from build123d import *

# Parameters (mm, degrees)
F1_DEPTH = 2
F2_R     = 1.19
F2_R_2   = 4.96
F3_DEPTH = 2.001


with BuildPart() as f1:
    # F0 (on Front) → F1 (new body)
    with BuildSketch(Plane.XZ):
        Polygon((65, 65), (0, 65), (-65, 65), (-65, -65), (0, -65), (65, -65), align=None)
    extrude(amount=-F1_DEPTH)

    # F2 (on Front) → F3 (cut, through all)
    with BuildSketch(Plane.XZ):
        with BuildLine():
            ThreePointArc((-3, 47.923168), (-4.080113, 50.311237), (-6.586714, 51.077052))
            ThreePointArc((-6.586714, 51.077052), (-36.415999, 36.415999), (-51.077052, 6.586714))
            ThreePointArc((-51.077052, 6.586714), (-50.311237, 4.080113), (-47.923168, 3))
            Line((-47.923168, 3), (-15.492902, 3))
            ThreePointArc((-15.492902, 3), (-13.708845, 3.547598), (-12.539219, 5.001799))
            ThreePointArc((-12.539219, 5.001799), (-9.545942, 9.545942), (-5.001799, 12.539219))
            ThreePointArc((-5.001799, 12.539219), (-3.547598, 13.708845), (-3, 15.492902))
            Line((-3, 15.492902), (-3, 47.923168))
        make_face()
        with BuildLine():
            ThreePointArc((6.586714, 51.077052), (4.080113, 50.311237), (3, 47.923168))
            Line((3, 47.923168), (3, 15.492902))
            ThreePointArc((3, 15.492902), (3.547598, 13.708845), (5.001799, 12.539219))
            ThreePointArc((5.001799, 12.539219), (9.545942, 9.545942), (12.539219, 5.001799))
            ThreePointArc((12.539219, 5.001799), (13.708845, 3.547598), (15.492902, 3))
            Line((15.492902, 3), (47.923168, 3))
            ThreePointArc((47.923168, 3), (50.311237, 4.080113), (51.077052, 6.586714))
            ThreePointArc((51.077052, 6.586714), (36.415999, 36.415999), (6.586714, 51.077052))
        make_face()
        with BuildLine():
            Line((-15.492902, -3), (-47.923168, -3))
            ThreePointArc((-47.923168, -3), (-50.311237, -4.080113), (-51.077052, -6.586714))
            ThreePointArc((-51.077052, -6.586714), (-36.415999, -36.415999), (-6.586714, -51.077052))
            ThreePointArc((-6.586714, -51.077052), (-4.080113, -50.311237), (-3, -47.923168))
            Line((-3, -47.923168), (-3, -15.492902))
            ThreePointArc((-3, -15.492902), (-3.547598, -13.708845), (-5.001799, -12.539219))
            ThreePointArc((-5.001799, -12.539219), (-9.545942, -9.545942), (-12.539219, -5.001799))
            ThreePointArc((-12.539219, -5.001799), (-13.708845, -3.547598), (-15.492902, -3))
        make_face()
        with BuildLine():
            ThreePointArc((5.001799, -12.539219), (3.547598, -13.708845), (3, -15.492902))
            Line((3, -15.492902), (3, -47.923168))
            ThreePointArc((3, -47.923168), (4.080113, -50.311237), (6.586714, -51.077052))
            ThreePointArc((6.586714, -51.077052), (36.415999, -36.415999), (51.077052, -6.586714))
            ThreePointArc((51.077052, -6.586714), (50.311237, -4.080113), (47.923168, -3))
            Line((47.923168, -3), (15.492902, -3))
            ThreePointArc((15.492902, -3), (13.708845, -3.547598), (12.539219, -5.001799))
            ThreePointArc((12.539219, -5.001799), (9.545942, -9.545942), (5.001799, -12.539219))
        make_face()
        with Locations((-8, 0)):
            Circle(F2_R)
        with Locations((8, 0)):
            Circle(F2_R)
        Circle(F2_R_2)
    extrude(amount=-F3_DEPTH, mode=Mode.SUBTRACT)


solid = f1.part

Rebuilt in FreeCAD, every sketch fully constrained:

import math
import FreeCAD as App
import Part
import Sketcher

V = App.Vector
Q = App.Units.Quantity


def add_polygon(sketch, points):
    """Adds a closed chain of lines whose ends are joined by coincident constraints."""
    first, n = sketch.GeometryCount, len(points)
    for a, b in zip(points, points[1:] + points[:1]):
        sketch.addGeometry(Part.LineSegment(App.Vector(*a, 0), App.Vector(*b, 0)), False)
    for i in range(n):
        sketch.addConstraint(Sketcher.Constraint("Coincident", first + i, 2, first + (i + 1) % n, 1))

doc = App.newDocument("Part")
params = doc.addObject("Spreadsheet::Sheet", "Params")
for row, (alias, value) in enumerate([
    ("sketch1_width", "130 mm"),
    ("pad1_length", "2 mm"),
    ("sketch2_diameter", "2.38 mm"),
    ("sketch2_diameter2", "9.92 mm"),
    ("sketch2_radius", "3.18 mm"),
], start=1):
    params.set(f"A{row}", alias)
    params.set(f"B{row}", "=" + value)
    params.setAlias(f"B{row}", alias)

body = doc.addObject("PartDesign::Body", "Body")

# Sketch on XZ plane
sketch1 = doc.addObject("Sketcher::SketchObject", "Sketch")
body.addObject(sketch1)
sketch1.AttachmentSupport = (doc.XZ_Plane, [""])
sketch1.MapMode = "FlatFace"
add_polygon(sketch1, [(65, 65), (-65, 65), (-65, -65), (65, -65)])  # lines 0-3
sketch1.addConstraint([
    Sketcher.Constraint("Horizontal", 0),
    Sketcher.Constraint("Vertical", 1),
    Sketcher.Constraint("Horizontal", 2),
    Sketcher.Constraint("Vertical", 3),
    Sketcher.Constraint("Symmetric", 0, 2, 2, 2, -1, 1),
    Sketcher.Constraint("Equal", 2, 1),
    Sketcher.Constraint("DistanceX", 0, 2, 0, 1, Q("130 mm")),
])
sketch1.setExpression("Constraints[10]", "Params.sketch1_width")
pad1 = doc.addObject("PartDesign::Pad", "Pad")
body.addObject(pad1)
pad1.Profile = sketch1
pad1.setExpression("Length", "Params.pad1_length")
pad1.Reversed = True

# Sketch on XZ plane
sketch2 = doc.addObject("Sketcher::SketchObject", "Sketch001")
body.addObject(sketch2)
sketch2.AttachmentSupport = (doc.XZ_Plane, [""])
sketch2.MapMode = "FlatFace"
sketch2.addGeometry([
    Part.ArcOfCircle(Part.Circle(V(-6.18, 47.923168, 0), V(0, 0, 1), 3.18), math.radians(0.000008), math.radians(97.348104)),  # 0
    Part.ArcOfCircle(Part.Circle(V(0.000003, -0.000003, 0), V(0, 0, 1), 51.500003), math.radians(97.348108), math.radians(172.651892)),  # 1
    Part.ArcOfCircle(Part.Circle(V(-47.923168, 6.18, 0), V(0, 0, 1), 3.18), math.radians(172.651896), math.radians(269.999992)),  # 2
    Part.LineSegment(V(-47.923168, 3, 0), V(-15.492902, 3, 0)),  # 3
    Part.ArcOfCircle(Part.Circle(V(-15.492902, 6.180001, 0), V(0, 0, 1), 3.180001), math.radians(-89.999995), math.radians(-21.746678)),  # 4
    Part.ArcOfCircle(Part.Circle(V(-0.000004, 0.000004, 0), V(0, 0, 1), 13.499996), math.radians(111.746672), math.radians(158.253328)),  # 5
    Part.ArcOfCircle(Part.Circle(V(-6.180001, 15.492902, 0), V(0, 0, 1), 3.180001), math.radians(-68.253322), math.radians(-0.000005)),  # 6
    Part.LineSegment(V(-3, 15.492902, 0), V(-3, 47.923168, 0)),  # 7
    Part.ArcOfCircle(Part.Circle(V(6.18, 47.923168, 0), V(0, 0, 1), 3.18), math.radians(82.651896), math.radians(179.999992)),  # 8
    Part.LineSegment(V(3, 47.923168, 0), V(3, 15.492902, 0)),  # 9
    Part.ArcOfCircle(Part.Circle(V(6.180001, 15.492902, 0), V(0, 0, 1), 3.180001), math.radians(-179.999995), math.radians(-111.746678)),  # 10
    Part.ArcOfCircle(Part.Circle(V(0.000004, 0.000004, 0), V(0, 0, 1), 13.499996), math.radians(21.746672), math.radians(68.253328)),  # 11
    Part.ArcOfCircle(Part.Circle(V(15.492902, 6.180001, 0), V(0, 0, 1), 3.180001), math.radians(-158.253322), math.radians(-90.000005)),  # 12
    Part.LineSegment(V(15.492902, 3, 0), V(47.923168, 3, 0)),  # 13
    Part.ArcOfCircle(Part.Circle(V(47.923168, 6.18, 0), V(0, 0, 1), 3.18), math.radians(-89.999992), math.radians(7.348104)),  # 14
    Part.ArcOfCircle(Part.Circle(V(-0.000003, -0.000003, 0), V(0, 0, 1), 51.500003), math.radians(7.348108), math.radians(82.651892)),  # 15
    Part.LineSegment(V(-15.492902, -3, 0), V(-47.923168, -3, 0)),  # 16
    Part.ArcOfCircle(Part.Circle(V(-47.923168, -6.18, 0), V(0, 0, 1), 3.18), math.radians(90.000008), math.radians(187.348104)),  # 17
    Part.ArcOfCircle(Part.Circle(V(0.000003, 0.000003, 0), V(0, 0, 1), 51.500003), math.radians(-172.651892), math.radians(-97.348108)),  # 18
    Part.ArcOfCircle(Part.Circle(V(-6.18, -47.923168, 0), V(0, 0, 1), 3.18), math.radians(-97.348104), math.radians(-0.000008)),  # 19
    Part.LineSegment(V(-3, -47.923168, 0), V(-3, -15.492902, 0)),  # 20
    Part.ArcOfCircle(Part.Circle(V(-6.180001, -15.492902, 0), V(0, 0, 1), 3.180001), math.radians(0.000005), math.radians(68.253322)),  # 21
    Part.ArcOfCircle(Part.Circle(V(-0.000004, -0.000004, 0), V(0, 0, 1), 13.499996), math.radians(-158.253328), math.radians(-111.746672)),  # 22
    Part.ArcOfCircle(Part.Circle(V(-15.492902, -6.180001, 0), V(0, 0, 1), 3.180001), math.radians(21.746678), math.radians(89.999995)),  # 23
    Part.ArcOfCircle(Part.Circle(V(6.180001, -15.492902, 0), V(0, 0, 1), 3.180001), math.radians(111.746678), math.radians(179.999995)),  # 24
    Part.LineSegment(V(3, -15.492902, 0), V(3, -47.923168, 0)),  # 25
    Part.ArcOfCircle(Part.Circle(V(6.18, -47.923168, 0), V(0, 0, 1), 3.18), math.radians(-179.999992), math.radians(-82.651896)),  # 26
    Part.ArcOfCircle(Part.Circle(V(-0.000003, 0.000003, 0), V(0, 0, 1), 51.500003), math.radians(-82.651892), math.radians(-7.348108)),  # 27
    Part.ArcOfCircle(Part.Circle(V(47.923168, -6.18, 0), V(0, 0, 1), 3.18), math.radians(-7.348104), math.radians(89.999992)),  # 28
    Part.LineSegment(V(47.923168, -3, 0), V(15.492902, -3, 0)),  # 29
    Part.ArcOfCircle(Part.Circle(V(15.492902, -6.180001, 0), V(0, 0, 1), 3.180001), math.radians(90.000005), math.radians(158.253322)),  # 30
    Part.ArcOfCircle(Part.Circle(V(0.000004, -0.000004, 0), V(0, 0, 1), 13.499996), math.radians(-68.253328), math.radians(-21.746672)),  # 31
    Part.Circle(V(-8, 0, 0), V(0, 0, 1), 1.19),  # 32
    Part.Circle(V(8, 0, 0), V(0, 0, 1), 1.19),  # 33
    Part.Circle(V(0, 0, 0), V(0, 0, 1), 4.96),  # 34
], False)
sketch2.addConstraint([
    Sketcher.Constraint("Tangent", 0, 2, 1, 1),
    Sketcher.Constraint("Tangent", 1, 2, 2, 1),
    Sketcher.Constraint("Tangent", 2, 2, 3, 1),
    Sketcher.Constraint("Tangent", 3, 2, 4, 1),
    Sketcher.Constraint("Tangent", 4, 2, 5, 2),
    Sketcher.Constraint("Tangent", 5, 1, 6, 1),
    Sketcher.Constraint("Tangent", 6, 2, 7, 1),
    Sketcher.Constraint("Tangent", 7, 2, 0, 1),
    Sketcher.Constraint("Tangent", 8, 2, 9, 1),
    Sketcher.Constraint("Tangent", 9, 2, 10, 1),
    Sketcher.Constraint("Tangent", 10, 2, 11, 2),
    Sketcher.Constraint("Tangent", 11, 1, 12, 1),
    Sketcher.Constraint("Tangent", 12, 2, 13, 1),
    Sketcher.Constraint("Tangent", 13, 2, 14, 1),
    Sketcher.Constraint("Tangent", 14, 2, 15, 1),
    Sketcher.Constraint("Tangent", 15, 2, 8, 1),
    Sketcher.Constraint("Tangent", 16, 2, 17, 1),
    Sketcher.Constraint("Tangent", 17, 2, 18, 1),
    Sketcher.Constraint("Tangent", 18, 2, 19, 1),
    Sketcher.Constraint("Tangent", 19, 2, 20, 1),
    Sketcher.Constraint("Tangent", 20, 2, 21, 1),
    Sketcher.Constraint("Tangent", 21, 2, 22, 2),
    Sketcher.Constraint("Tangent", 22, 1, 23, 1),
    Sketcher.Constraint("Tangent", 23, 2, 16, 1),
    Sketcher.Constraint("Tangent", 24, 2, 25, 1),
    Sketcher.Constraint("Tangent", 25, 2, 26, 1),
    Sketcher.Constraint("Tangent", 26, 2, 27, 1),
    Sketcher.Constraint("Tangent", 27, 2, 28, 1),
    Sketcher.Constraint("Tangent", 28, 2, 29, 1),
    Sketcher.Constraint("Tangent", 29, 2, 30, 1),
    Sketcher.Constraint("Tangent", 30, 2, 31, 2),
    Sketcher.Constraint("Tangent", 31, 1, 24, 1),
    Sketcher.Constraint("Horizontal", 3),
    Sketcher.Constraint("Vertical", 7),
    Sketcher.Constraint("Vertical", 9),
    Sketcher.Constraint("Horizontal", 13),
    Sketcher.Constraint("Horizontal", 16),
    Sketcher.Constraint("Vertical", 20),
    Sketcher.Constraint("Vertical", 25),
    Sketcher.Constraint("Horizontal", 29),
    Sketcher.Constraint("Coincident", 1, 3, -1, 1),
    Sketcher.Constraint("Coincident", 5, 3, -1, 1),
    Sketcher.Constraint("Coincident", 11, 3, -1, 1),
    Sketcher.Constraint("Coincident", 15, 3, -1, 1),
    Sketcher.Constraint("Coincident", 18, 3, -1, 1),
    Sketcher.Constraint("Coincident", 22, 3, -1, 1),
    Sketcher.Constraint("Coincident", 27, 3, -1, 1),
    Sketcher.Constraint("Coincident", 31, 3, -1, 1),
    Sketcher.Constraint("Coincident", 34, 3, -1, 1),
    Sketcher.Constraint("Equal", 0, 2),
    Sketcher.Constraint("Equal", 2, 4),
    Sketcher.Constraint("Equal", 4, 6),
    Sketcher.Constraint("Equal", 6, 8),
    Sketcher.Constraint("Equal", 8, 10),
    Sketcher.Constraint("Equal", 5, 11),
    Sketcher.Constraint("Equal", 10, 12),
    Sketcher.Constraint("Equal", 12, 14),
    Sketcher.Constraint("Equal", 1, 15),
    Sketcher.Constraint("Equal", 14, 17),
    Sketcher.Constraint("Equal", 15, 18),
    Sketcher.Constraint("Equal", 17, 19),
    Sketcher.Constraint("Equal", 19, 21),
    Sketcher.Constraint("Equal", 11, 22),
    Sketcher.Constraint("Equal", 21, 23),
    Sketcher.Constraint("Equal", 23, 24),
    Sketcher.Constraint("Equal", 24, 26),
    Sketcher.Constraint("Equal", 18, 27),
    Sketcher.Constraint("Equal", 26, 28),
    Sketcher.Constraint("Equal", 28, 30),
    Sketcher.Constraint("Equal", 22, 31),
    Sketcher.Constraint("Equal", 32, 33),
    Sketcher.Constraint("Symmetric", 32, 3, 33, 3, -1, 1),
    Sketcher.Constraint("PointOnObject", 32, 3, -1),
    Sketcher.Constraint("Horizontal", 0, 3, 8, 3),
    Sketcher.Constraint("Horizontal", 4, 3, 12, 3),
    Sketcher.Constraint("Horizontal", 21, 3, 24, 3),
    Sketcher.Constraint("Horizontal", 23, 3, 28, 3),
    Sketcher.Constraint("Vertical", 2, 3, 17, 3),
    Sketcher.Constraint("Vertical", 6, 3, 19, 3),
    Sketcher.Constraint("Equal", 29, 7),
    Sketcher.Constraint("Diameter", 32, Q("2.38 mm")),
    Sketcher.Constraint("Diameter", 34, Q("9.92 mm")),
    Sketcher.Constraint("Radius", 0, Q("3.18 mm")),
    Sketcher.Constraint("DistanceX", 32, 3, -1, 1, Q("8 mm")),
    Sketcher.Constraint("DistanceY", -1, 1, 2, 2, Q("3 mm")),
    Sketcher.Constraint("Radius", 1, Q("51.500003 mm")),
    Sketcher.Constraint("Radius", 5, Q("13.499996 mm")),
])
sketch2.setExpression("Constraints[80]", "Params.sketch2_diameter")
sketch2.setExpression("Constraints[81]", "Params.sketch2_diameter2")
sketch2.setExpression("Constraints[82]", "Params.sketch2_radius")
pocket1 = doc.addObject("PartDesign::Pocket", "Pocket")
body.addObject(pocket1)
pocket1.Profile = sketch2
pocket1.Type = "ThroughAll"

doc.recompute()
